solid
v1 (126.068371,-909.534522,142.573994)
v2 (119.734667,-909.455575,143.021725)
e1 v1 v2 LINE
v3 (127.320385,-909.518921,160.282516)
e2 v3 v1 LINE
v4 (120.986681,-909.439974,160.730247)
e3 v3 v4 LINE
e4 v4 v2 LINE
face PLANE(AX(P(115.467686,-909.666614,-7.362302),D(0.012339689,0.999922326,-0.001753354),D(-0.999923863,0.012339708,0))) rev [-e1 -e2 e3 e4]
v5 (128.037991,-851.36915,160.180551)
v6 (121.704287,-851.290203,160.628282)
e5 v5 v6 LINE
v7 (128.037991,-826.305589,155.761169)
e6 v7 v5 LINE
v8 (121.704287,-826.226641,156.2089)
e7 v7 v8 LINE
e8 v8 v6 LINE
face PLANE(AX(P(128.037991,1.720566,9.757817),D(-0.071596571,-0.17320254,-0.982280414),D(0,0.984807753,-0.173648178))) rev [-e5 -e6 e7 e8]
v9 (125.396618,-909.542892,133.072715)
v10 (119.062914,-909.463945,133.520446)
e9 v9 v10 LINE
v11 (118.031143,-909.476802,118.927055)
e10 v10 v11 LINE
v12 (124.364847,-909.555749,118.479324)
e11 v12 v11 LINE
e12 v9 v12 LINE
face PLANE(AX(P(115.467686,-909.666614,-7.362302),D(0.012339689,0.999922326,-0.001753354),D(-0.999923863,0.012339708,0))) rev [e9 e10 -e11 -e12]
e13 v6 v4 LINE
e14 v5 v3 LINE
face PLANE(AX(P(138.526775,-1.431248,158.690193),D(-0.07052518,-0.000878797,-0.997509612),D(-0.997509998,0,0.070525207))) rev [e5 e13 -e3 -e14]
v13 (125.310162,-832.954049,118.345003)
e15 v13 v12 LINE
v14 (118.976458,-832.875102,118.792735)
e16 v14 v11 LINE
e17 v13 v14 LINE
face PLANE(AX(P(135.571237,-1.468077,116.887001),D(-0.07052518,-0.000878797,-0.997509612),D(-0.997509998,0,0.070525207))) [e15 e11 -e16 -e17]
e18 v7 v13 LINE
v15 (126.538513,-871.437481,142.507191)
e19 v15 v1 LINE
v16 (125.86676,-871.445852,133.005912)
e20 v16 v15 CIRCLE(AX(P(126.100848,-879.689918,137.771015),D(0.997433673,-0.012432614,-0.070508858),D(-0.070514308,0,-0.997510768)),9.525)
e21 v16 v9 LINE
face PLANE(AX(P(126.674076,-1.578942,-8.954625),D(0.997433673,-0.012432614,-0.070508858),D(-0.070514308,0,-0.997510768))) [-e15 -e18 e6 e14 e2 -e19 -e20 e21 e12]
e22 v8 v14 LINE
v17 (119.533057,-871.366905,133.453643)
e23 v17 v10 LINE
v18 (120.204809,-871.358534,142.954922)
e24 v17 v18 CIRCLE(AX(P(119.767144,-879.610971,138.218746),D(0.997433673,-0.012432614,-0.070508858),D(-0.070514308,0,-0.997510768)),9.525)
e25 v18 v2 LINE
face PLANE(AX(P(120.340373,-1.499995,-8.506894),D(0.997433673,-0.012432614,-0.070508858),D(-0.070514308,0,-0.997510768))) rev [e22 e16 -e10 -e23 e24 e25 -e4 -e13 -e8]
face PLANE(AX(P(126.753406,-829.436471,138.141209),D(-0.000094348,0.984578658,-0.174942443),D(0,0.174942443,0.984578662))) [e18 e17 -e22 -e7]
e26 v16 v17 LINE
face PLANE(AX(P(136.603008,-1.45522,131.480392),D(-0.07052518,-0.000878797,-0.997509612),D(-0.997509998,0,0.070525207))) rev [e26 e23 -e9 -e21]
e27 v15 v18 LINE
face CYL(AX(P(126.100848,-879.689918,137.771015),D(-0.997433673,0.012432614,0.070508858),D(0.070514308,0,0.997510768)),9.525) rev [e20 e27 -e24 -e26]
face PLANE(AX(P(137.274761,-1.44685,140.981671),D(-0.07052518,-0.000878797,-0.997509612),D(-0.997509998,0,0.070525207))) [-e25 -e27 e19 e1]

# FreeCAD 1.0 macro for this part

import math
import FreeCAD as App
import Part
import Sketcher
from FreeCAD import Vector
Q = App.Units.Quantity

doc = App.newDocument("Part")
body = doc.addObject("PartDesign::Body", "Body")

# Sketch on an angled plane
sketch1 = body.newObject("Sketcher::SketchObject", "Sketch")
sketch1.Placement = App.Placement(Vector(120.340373, -1.499995, -8.506894), App.Rotation(Vector(-0.07052518, -0.000878797, -0.997509612), Vector(0.012339689, 0.999922326, -0.001753354), Vector(0.997433673, -0.012432614, -0.070508858), "ZXY"))
sketch1.addGeometry(Part.LineSegment(Vector(-157.673618, -825.993122, 0), Vector(-163.677011, -824.934562, 0)), False)
sketch1.addGeometry(Part.LineSegment(Vector(-163.677011, -824.934562, 0), Vector(-168.063361, -850.003925, 0)), False)
sketch1.addGeometry(Part.LineSegment(Vector(-168.063361, -850.003925, 0), Vector(-168.063361, -908.158213, 0)), False)
sketch1.addGeometry(Part.LineSegment(Vector(-168.063361, -908.158213, 0), Vector(-150.310628, -908.158213, 0)), False)
sketch1.addGeometry(Part.LineSegment(Vector(-150.310628, -908.158213, 0), Vector(-150.310628, -870.058213, 0)), False)
sketch1.addGeometry(Part.ArcOfCircle(Part.Circle(Vector(-145.548128, -878.307105, 0), Vector(0, 0, 1), 9.525), math.radians(60), math.radians(120)), False)
sketch1.addGeometry(Part.LineSegment(Vector(-140.785628, -870.058213, 0), Vector(-140.785628, -908.158213, 0)), False)
sketch1.addGeometry(Part.LineSegment(Vector(-140.785628, -908.158213, 0), Vector(-126.155803, -908.158213, 0)), False)
sketch1.addGeometry(Part.LineSegment(Vector(-126.155803, -908.158213, 0), Vector(-126.155803, -831.550563, 0)), False)
sketch1.addGeometry(Part.LineSegment(Vector(-126.155803, -831.550563, 0), Vector(-132.159196, -830.492003, 0)), False)
sketch1.addGeometry(Part.LineSegment(Vector(-132.159196, -830.492003, 0), Vector(-157.673618, -825.993122, 0)), False)
sketch1.addConstraint(Sketcher.Constraint("Coincident", 0, 2, 1, 1))
sketch1.addConstraint(Sketcher.Constraint("Coincident", 1, 2, 2, 1))
sketch1.addConstraint(Sketcher.Constraint("Coincident", 2, 2, 3, 1))
sketch1.addConstraint(Sketcher.Constraint("Coincident", 3, 2, 4, 1))
sketch1.addConstraint(Sketcher.Constraint("Coincident", 4, 2, 5, 2))
sketch1.addConstraint(Sketcher.Constraint("Coincident", 5, 1, 6, 1))
sketch1.addConstraint(Sketcher.Constraint("Coincident", 6, 2, 7, 1))
sketch1.addConstraint(Sketcher.Constraint("Coincident", 7, 2, 8, 1))
sketch1.addConstraint(Sketcher.Constraint("Coincident", 8, 2, 9, 1))
sketch1.addConstraint(Sketcher.Constraint("Coincident", 9, 2, 10, 1))
sketch1.addConstraint(Sketcher.Constraint("Coincident", 10, 2, 0, 1))
sketch1.addConstraint(Sketcher.Constraint("Vertical", 2))
sketch1.addConstraint(Sketcher.Constraint("Horizontal", 3))
sketch1.addConstraint(Sketcher.Constraint("Vertical", 4))
sketch1.addConstraint(Sketcher.Constraint("Vertical", 6))
sketch1.addConstraint(Sketcher.Constraint("Horizontal", 7))
sketch1.addConstraint(Sketcher.Constraint("Vertical", 8))
sketch1.addConstraint(Sketcher.Constraint("Parallel", 0, 9))
sketch1.addConstraint(Sketcher.Constraint("Parallel", 9, 10))
sketch1.addConstraint(Sketcher.Constraint("Horizontal", 4, 2, 5, 1))
sketch1.addConstraint(Sketcher.Constraint("Horizontal", 3, 2, 6, 2))
sketch1.addConstraint(Sketcher.Constraint("Equal", 0, 9))
sketch1.addConstraint(Sketcher.Constraint("DistanceY", 4, 1, 4, 2, Q("1.5 in")))
sketch1.addConstraint(Sketcher.Constraint("Angle", 0, Q("170 deg")))
sketch1.addConstraint(Sketcher.Constraint("Radius", 5, Q("0.375 in")))
sketch1.addConstraint(Sketcher.Constraint("DistanceX", 3, 2, 5, 3, Q("0.1875 in")))
sketch1.addConstraint(Sketcher.Constraint("DistanceY", 2, 2, 2, 1, Q("58.154288 mm")))
sketch1.addConstraint(Sketcher.Constraint("DistanceY", 8, 1, 8, 2, Q("76.60765 mm")))
sketch1.addConstraint(Sketcher.Constraint("DistanceY", 8, 2, 0, 2, Q("6.616001 mm")))
sketch1.addConstraint(Sketcher.Constraint("DistanceX", 3, 1, 3, 2, Q("17.752733 mm")))
sketch1.addConstraint(Sketcher.Constraint("DistanceX", 7, 1, 7, 2, Q("14.629825 mm")))
sketch1.addConstraint(Sketcher.Constraint("DistanceX", 0, 2, -1, 1, Q("163.677011 mm")))
sketch1.addConstraint(Sketcher.Constraint("DistanceY", 0, 2, -1, 1, Q("824.934562 mm")))
sketch1.addConstraint(Sketcher.Constraint("DistanceY", 10, 2, -1, 1, Q("825.993122 mm")))
pad1 = body.newObject("PartDesign::Pad", "Pad")
pad1.Profile = sketch1
pad1.Length = Q("0.25 in")

doc.recompute()
